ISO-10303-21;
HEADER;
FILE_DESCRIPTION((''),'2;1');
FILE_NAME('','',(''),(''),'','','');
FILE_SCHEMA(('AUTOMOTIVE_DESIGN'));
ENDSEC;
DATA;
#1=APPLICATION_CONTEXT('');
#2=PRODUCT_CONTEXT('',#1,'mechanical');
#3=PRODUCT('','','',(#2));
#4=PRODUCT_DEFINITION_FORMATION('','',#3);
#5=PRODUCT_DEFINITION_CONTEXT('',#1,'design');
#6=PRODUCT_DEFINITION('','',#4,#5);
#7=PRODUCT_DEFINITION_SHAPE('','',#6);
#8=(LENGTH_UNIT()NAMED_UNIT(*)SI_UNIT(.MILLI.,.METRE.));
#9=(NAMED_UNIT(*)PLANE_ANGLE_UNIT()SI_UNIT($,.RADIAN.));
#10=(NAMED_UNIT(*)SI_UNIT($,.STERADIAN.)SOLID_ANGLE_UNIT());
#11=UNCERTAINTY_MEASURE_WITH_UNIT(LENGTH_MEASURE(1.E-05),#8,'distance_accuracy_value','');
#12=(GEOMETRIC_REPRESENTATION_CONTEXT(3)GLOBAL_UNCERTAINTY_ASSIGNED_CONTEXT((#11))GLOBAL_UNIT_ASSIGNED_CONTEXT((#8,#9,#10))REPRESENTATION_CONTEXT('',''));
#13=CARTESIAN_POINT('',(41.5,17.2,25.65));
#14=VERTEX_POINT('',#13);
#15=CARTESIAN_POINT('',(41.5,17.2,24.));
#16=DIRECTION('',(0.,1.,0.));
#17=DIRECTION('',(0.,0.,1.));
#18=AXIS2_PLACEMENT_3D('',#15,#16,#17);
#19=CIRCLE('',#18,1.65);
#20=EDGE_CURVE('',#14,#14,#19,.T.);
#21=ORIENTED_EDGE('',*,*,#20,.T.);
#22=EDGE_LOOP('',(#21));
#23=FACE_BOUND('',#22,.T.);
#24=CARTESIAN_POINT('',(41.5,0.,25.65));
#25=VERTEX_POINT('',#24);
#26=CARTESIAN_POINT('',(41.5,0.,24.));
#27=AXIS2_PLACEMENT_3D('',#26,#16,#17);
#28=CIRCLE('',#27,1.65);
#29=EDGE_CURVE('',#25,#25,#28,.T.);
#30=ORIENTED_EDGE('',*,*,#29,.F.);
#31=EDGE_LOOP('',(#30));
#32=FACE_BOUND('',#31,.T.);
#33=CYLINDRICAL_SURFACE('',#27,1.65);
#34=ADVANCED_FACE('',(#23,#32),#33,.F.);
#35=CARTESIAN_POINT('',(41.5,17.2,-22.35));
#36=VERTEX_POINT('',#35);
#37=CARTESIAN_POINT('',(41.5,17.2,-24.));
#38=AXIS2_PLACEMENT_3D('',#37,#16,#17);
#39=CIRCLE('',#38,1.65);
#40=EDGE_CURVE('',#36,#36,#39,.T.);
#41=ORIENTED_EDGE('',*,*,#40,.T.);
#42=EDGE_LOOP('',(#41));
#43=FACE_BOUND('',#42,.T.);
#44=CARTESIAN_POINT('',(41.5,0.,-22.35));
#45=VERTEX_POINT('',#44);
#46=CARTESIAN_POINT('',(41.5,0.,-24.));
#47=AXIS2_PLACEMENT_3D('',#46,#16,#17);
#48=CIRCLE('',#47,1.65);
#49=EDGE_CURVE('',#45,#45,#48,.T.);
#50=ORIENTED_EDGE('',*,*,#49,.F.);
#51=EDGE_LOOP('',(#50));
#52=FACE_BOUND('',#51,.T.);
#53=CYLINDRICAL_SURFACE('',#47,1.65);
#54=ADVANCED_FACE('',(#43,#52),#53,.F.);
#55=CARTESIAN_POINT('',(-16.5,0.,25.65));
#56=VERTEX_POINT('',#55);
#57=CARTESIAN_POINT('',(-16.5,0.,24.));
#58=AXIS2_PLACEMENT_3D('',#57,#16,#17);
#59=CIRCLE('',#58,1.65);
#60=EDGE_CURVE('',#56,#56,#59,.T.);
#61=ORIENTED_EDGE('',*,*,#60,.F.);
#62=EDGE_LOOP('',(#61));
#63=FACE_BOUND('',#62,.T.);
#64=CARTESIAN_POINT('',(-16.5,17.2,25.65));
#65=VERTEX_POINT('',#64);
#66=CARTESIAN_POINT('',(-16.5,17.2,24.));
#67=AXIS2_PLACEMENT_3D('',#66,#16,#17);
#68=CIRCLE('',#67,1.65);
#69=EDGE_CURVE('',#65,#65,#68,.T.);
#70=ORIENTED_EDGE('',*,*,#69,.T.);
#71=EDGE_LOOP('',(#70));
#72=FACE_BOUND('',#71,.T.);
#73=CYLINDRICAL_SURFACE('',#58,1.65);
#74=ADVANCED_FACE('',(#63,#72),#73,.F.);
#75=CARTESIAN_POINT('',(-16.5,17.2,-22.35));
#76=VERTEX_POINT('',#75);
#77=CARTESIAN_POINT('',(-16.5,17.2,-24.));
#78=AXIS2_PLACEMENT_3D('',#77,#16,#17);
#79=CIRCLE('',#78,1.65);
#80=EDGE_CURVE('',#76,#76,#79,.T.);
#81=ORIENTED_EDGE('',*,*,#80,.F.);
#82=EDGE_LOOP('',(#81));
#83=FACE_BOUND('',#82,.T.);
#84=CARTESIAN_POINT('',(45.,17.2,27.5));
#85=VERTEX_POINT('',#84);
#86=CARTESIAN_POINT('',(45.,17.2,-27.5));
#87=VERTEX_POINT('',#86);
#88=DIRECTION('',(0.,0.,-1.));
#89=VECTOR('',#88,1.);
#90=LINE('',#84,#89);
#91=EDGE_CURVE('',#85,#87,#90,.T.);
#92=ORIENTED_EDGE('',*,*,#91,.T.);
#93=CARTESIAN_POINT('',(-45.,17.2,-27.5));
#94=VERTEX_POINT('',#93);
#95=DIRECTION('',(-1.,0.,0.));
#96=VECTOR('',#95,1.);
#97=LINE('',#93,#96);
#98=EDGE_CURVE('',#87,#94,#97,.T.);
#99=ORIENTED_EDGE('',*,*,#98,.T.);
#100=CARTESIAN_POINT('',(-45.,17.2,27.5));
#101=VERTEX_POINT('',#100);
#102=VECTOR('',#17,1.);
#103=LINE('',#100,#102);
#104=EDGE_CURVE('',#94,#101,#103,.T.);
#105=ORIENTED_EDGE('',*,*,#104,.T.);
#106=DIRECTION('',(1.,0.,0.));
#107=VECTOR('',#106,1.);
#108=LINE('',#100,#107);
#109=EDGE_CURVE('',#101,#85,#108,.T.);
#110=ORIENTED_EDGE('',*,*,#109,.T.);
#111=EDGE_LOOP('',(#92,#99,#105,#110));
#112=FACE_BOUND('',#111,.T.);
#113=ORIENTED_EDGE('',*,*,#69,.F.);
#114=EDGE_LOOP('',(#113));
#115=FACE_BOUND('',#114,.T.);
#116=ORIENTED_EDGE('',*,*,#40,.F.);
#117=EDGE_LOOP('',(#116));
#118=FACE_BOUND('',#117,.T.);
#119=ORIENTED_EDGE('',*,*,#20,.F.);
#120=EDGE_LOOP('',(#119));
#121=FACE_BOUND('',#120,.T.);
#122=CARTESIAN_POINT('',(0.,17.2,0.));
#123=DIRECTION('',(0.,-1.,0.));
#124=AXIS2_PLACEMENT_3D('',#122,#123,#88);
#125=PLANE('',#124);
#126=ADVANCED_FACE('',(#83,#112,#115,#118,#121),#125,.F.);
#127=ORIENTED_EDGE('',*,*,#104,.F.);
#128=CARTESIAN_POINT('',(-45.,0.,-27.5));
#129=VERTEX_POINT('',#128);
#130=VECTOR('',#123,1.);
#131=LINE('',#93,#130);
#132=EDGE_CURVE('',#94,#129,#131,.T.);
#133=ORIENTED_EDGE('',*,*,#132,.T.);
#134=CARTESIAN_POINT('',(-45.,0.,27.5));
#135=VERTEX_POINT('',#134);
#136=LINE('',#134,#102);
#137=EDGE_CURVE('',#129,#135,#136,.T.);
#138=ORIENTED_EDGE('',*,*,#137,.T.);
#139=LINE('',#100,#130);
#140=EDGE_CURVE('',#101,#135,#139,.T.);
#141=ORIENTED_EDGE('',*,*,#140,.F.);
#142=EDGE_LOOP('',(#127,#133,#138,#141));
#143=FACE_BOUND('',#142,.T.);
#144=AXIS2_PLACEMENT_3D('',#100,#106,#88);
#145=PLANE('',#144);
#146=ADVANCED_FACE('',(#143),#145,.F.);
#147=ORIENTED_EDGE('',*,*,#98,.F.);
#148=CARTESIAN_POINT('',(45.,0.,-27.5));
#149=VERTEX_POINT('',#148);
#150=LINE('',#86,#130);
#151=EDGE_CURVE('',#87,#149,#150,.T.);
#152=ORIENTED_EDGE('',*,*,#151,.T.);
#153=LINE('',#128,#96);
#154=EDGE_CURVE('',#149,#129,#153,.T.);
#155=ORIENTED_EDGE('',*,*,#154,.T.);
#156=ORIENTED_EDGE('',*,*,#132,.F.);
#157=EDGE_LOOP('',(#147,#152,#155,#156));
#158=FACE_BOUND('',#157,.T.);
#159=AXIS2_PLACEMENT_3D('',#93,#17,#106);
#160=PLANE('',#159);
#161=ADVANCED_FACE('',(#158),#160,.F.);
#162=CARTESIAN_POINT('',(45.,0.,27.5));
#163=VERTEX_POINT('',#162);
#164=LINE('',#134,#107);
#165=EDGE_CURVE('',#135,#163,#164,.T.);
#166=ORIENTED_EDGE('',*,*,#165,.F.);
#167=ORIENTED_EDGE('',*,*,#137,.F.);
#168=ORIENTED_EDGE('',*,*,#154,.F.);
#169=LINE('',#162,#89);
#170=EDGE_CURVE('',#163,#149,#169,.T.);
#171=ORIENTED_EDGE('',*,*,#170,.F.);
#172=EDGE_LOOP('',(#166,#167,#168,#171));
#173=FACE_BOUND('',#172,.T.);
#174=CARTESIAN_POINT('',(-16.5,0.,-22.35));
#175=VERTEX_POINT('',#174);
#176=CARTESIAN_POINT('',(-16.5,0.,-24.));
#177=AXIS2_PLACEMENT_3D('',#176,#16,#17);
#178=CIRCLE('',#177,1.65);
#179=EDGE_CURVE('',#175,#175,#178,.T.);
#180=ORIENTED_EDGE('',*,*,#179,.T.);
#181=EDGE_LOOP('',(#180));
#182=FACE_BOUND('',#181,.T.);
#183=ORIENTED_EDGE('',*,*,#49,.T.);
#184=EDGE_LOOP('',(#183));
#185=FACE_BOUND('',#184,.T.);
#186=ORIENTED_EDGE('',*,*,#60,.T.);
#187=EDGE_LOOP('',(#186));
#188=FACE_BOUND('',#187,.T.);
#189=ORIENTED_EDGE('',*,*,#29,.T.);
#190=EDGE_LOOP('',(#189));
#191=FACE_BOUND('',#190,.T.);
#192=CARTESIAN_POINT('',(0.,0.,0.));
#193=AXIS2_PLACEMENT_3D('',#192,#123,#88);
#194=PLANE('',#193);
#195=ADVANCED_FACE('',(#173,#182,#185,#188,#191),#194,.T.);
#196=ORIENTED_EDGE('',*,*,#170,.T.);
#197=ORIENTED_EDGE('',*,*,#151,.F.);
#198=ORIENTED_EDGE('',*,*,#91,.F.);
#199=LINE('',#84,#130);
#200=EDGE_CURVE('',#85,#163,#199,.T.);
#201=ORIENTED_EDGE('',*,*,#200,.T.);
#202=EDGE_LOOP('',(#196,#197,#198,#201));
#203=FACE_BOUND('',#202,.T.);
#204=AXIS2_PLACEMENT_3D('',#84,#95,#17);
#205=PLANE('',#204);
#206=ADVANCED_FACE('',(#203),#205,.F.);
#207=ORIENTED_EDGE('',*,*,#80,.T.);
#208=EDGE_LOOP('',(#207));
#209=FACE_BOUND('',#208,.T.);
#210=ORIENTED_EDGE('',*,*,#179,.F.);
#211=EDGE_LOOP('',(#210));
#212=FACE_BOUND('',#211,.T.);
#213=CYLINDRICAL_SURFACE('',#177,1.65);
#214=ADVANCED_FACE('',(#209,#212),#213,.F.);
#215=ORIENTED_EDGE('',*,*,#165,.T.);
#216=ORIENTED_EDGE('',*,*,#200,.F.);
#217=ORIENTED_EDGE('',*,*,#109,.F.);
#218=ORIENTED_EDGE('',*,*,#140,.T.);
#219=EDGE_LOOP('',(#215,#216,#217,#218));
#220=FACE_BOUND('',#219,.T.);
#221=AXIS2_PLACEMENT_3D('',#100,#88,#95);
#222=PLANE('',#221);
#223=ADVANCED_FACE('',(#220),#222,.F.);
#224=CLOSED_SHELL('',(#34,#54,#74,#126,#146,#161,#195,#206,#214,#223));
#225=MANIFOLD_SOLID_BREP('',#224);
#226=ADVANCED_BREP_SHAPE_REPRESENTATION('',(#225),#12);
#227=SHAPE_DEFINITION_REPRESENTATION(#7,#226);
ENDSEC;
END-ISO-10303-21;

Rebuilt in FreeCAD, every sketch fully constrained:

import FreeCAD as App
import Part
import Sketcher

doc = App.newDocument("Part")
body = doc.addObject("PartDesign::Body", "Body")

# Sketch on XZ plane
sketch1 = doc.addObject("Sketcher::SketchObject", "Sketch")
body.addObject(sketch1)
sketch1.AttachmentSupport = (doc.XZ_Plane, [""])
sketch1.MapMode = "FlatFace"
sketch1.addGeometry([
    Part.LineSegment(App.Vector(-45, -28, 0), App.Vector(-45, 28, 0)),
    Part.LineSegment(App.Vector(-45, 28, 0), App.Vector(45, 28, 0)),
    Part.LineSegment(App.Vector(45, 28, 0), App.Vector(45, -28, 0)),
    Part.LineSegment(App.Vector(45, -28, 0), App.Vector(-45, -28, 0)),
], False)
sketch1.addConstraint([
    Sketcher.Constraint("Coincident", 0, 2, 1, 1),
    Sketcher.Constraint("Coincident", 1, 2, 2, 1),
    Sketcher.Constraint("Coincident", 2, 2, 3, 1),
    Sketcher.Constraint("Coincident", 3, 2, 0, 1),
    Sketcher.Constraint("Vertical", 0),
    Sketcher.Constraint("Horizontal", 1),
    Sketcher.Constraint("Vertical", 2),
    Sketcher.Constraint("Horizontal", 3),
    Sketcher.Constraint("Symmetric", 0, 2, 2, 2, -1, 1),
    Sketcher.Constraint("DistanceX", 1, 1, 1, 2, 90.0),
    Sketcher.Constraint("DistanceY", 0, 1, 0, 2, 55.0),
])
pad1 = doc.addObject("PartDesign::Pad", "Pad")
body.addObject(pad1)
pad1.Profile = sketch1
pad1.Length = 17.2
pad1.Reversed = True

# Sketch on XZ plane
sketch2 = doc.addObject("Sketcher::SketchObject", "Sketch001")
body.addObject(sketch2)
sketch2.AttachmentSupport = (doc.XZ_Plane, [""])
sketch2.MapMode = "FlatFace"
sketch2.AttachmentOffset = App.Placement(App.Vector(0, 0, -17.2), App.Rotation())
sketch2.addGeometry([
    Part.Circle(App.Vector(41.5, -24, 0), App.Vector(0, 0, 1), 1.6),
    Part.Circle(App.Vector(41.5, 24, 0), App.Vector(0, 0, 1), 1.6),
    Part.Circle(App.Vector(-16.5, 24, 0), App.Vector(0, 0, 1), 1.6),
    Part.Circle(App.Vector(-16.5, -24, 0), App.Vector(0, 0, 1), 1.6),
], False)
sketch2.addConstraint([
    Sketcher.Constraint("Equal", 0, 1),
    Sketcher.Constraint("Equal", 1, 2),
    Sketcher.Constraint("Equal", 2, 3),
    Sketcher.Constraint("Symmetric", 0, 3, 1, 3, -1),
    Sketcher.Constraint("Symmetric", 2, 3, 3, 3, -1),
    Sketcher.Constraint("Horizontal", 1, 3, 2, 3),
    Sketcher.Constraint("Diameter", 0, 3.3),
    Sketcher.Constraint("DistanceY", 0, 3, -1, 1, 24.0),
    Sketcher.Constraint("DistanceX", 2, 3, 1, 3, 58.0),
    Sketcher.Constraint("DistanceX", -1, 1, 0, 3, 41.5),
])
pocket1 = doc.addObject("PartDesign::Pocket", "Pocket")
body.addObject(pocket1)
pocket1.Profile = sketch2
pocket1.Type = "ThroughAll"
pocket1.Reversed = True

doc.recompute()
